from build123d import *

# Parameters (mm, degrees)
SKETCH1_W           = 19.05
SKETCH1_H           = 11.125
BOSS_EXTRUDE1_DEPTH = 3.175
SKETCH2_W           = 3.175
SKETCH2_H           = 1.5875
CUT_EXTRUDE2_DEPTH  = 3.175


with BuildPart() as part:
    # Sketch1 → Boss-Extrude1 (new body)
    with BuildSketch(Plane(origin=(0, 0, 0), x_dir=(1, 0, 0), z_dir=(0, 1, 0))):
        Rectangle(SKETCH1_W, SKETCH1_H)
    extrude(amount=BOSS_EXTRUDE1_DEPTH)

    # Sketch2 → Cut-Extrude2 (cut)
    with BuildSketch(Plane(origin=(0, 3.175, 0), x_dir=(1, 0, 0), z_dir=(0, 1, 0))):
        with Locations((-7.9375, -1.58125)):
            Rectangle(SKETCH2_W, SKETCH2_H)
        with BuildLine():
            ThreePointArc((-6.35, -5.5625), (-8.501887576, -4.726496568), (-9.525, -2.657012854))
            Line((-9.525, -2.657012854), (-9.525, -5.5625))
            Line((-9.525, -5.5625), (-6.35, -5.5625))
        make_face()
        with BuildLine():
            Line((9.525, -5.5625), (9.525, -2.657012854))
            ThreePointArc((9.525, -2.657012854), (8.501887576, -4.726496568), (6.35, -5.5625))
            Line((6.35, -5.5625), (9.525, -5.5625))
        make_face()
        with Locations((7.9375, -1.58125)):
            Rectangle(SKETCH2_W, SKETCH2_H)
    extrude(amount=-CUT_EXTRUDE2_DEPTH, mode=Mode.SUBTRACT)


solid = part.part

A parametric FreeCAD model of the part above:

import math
import FreeCAD as App
import Part
import Sketcher

V = App.Vector
Q = App.Units.Quantity


def add_polygon(sketch, points):
    """Adds a closed chain of lines whose ends are joined by coincident constraints."""
    first, n = sketch.GeometryCount, len(points)
    for a, b in zip(points, points[1:] + points[:1]):
        sketch.addGeometry(Part.LineSegment(App.Vector(*a, 0), App.Vector(*b, 0)), False)
    for i in range(n):
        sketch.addConstraint(Sketcher.Constraint("Coincident", first + i, 2, first + (i + 1) % n, 1))

doc = App.newDocument("Part")
body = doc.addObject("PartDesign::Body", "Body")

# Sketch on XZ plane
sketch1 = body.newObject("Sketcher::SketchObject", "Sketch")
sketch1.AttachmentSupport = (doc.getObject("XZ_Plane"), [""])
sketch1.MapMode = "FlatFace"
add_polygon(sketch1, [(-10, -6), (-10, 6), (10, 6), (10, -6)])  # lines 0-3
sketch1.addConstraint(Sketcher.Constraint("Vertical", 0))
sketch1.addConstraint(Sketcher.Constraint("Horizontal", 1))
sketch1.addConstraint(Sketcher.Constraint("Vertical", 2))
sketch1.addConstraint(Sketcher.Constraint("Horizontal", 3))
sketch1.addConstraint(Sketcher.Constraint("Symmetric", 0, 2, 2, 2, -1, 1))
sketch1.addConstraint(Sketcher.Constraint("DistanceX", 1, 1, 1, 2, Q("0.75 in")))
sketch1.addConstraint(Sketcher.Constraint("DistanceY", 0, 1, 0, 2, Q("11.125 mm")))
pad1 = body.newObject("PartDesign::Pad", "Pad")
pad1.Profile = sketch1
pad1.Length = Q("0.125 in")
pad1.Reversed = True

# Sketch on XZ plane
sketch2 = body.newObject("Sketcher::SketchObject", "Sketch001")
sketch2.AttachmentSupport = (doc.getObject("XZ_Plane"), [""])
sketch2.MapMode = "FlatFace"
sketch2.AttachmentOffset = App.Placement(V(0, 0, -0.125 * 25.4), App.Rotation())
add_polygon(sketch2, [(-9.5, 0.8), (-9.5, 2.4), (-6.3, 2.4), (-6.3, 0.8)])  # lines 0-3
sketch2.addGeometry(Part.ArcOfCircle(Part.Circle(V(-6.3, 2.4, 0), V(0, 0, 1), 3.2), math.radians(90), math.radians(175)), False)  # 4
sketch2.addGeometry(Part.LineSegment(V(-9.5, 2.7, 0), V(-9.5, 5.6, 0)), False)  # 5
sketch2.addGeometry(Part.LineSegment(V(-9.5, 5.6, 0), V(-6.3, 5.6, 0)), False)  # 6
sketch2.addGeometry(Part.LineSegment(V(9.5, 5.6, 0), V(9.5, 2.7, 0)), False)  # 7
sketch2.addGeometry(Part.ArcOfCircle(Part.Circle(V(6.3, 2.4, 0), V(0, 0, 1), 3.2), math.radians(5), math.radians(90)), False)  # 8
sketch2.addGeometry(Part.LineSegment(V(6.3, 5.6, 0), V(9.5, 5.6, 0)), False)  # 9
add_polygon(sketch2, [(6.3, 0.8), (6.3, 2.4), (9.5, 2.4), (9.5, 0.8)])  # lines 10-13
sketch2.addConstraint(Sketcher.Constraint("Coincident", 4, 2, 5, 1))
sketch2.addConstraint(Sketcher.Constraint("Coincident", 5, 2, 6, 1))
sketch2.addConstraint(Sketcher.Constraint("Tangent", 6, 2, 4, 1))
sketch2.addConstraint(Sketcher.Constraint("Coincident", 7, 2, 8, 1))
sketch2.addConstraint(Sketcher.Constraint("Tangent", 8, 2, 9, 1))
sketch2.addConstraint(Sketcher.Constraint("Coincident", 9, 2, 7, 1))
sketch2.addConstraint(Sketcher.Constraint("Vertical", 0))
sketch2.addConstraint(Sketcher.Constraint("Horizontal", 1))
sketch2.addConstraint(Sketcher.Constraint("Vertical", 2))
sketch2.addConstraint(Sketcher.Constraint("Horizontal", 3))
sketch2.addConstraint(Sketcher.Constraint("Vertical", 5))
sketch2.addConstraint(Sketcher.Constraint("Horizontal", 6))
sketch2.addConstraint(Sketcher.Constraint("Vertical", 7))
sketch2.addConstraint(Sketcher.Constraint("Horizontal", 9))
sketch2.addConstraint(Sketcher.Constraint("Vertical", 10))
sketch2.addConstraint(Sketcher.Constraint("Horizontal", 11))
sketch2.addConstraint(Sketcher.Constraint("Vertical", 12))
sketch2.addConstraint(Sketcher.Constraint("Horizontal", 13))
sketch2.addConstraint(Sketcher.Constraint("Coincident", 1, 2, 4, 3))
sketch2.addConstraint(Sketcher.Constraint("Coincident", 10, 2, 8, 3))
sketch2.addConstraint(Sketcher.Constraint("Equal", 4, 8))
sketch2.addConstraint(Sketcher.Constraint("Symmetric", 4, 3, 8, 3, -2))
sketch2.addConstraint(Sketcher.Constraint("Symmetric", 3, 2, 12, 2, -2))
sketch2.addConstraint(Sketcher.Constraint("Horizontal", 4, 2, 7, 2))
sketch2.addConstraint(Sketcher.Constraint("Vertical", 3, 2, 4, 2))
sketch2.addConstraint(Sketcher.Constraint("DistanceX", 4, 3, 8, 3, Q("0.5 in")))
sketch2.addConstraint(Sketcher.Constraint("DistanceX", 1, 1, 1, 2, Q("0.125 in")))
sketch2.addConstraint(Sketcher.Constraint("DistanceY", 0, 1, 0, 2, Q("0.0625 in")))
sketch2.addConstraint(Sketcher.Constraint("Radius", 4, Q("3.1875 mm")))
sketch2.addConstraint(Sketcher.Constraint("DistanceY", -1, 1, 4, 3, Q("2.375 mm")))
pocket1 = body.newObject("PartDesign::Pocket", "Pocket")
pocket1.Profile = sketch2
pocket1.Length = Q("0.125 in")
pocket1.Reversed = True

doc.recompute()
